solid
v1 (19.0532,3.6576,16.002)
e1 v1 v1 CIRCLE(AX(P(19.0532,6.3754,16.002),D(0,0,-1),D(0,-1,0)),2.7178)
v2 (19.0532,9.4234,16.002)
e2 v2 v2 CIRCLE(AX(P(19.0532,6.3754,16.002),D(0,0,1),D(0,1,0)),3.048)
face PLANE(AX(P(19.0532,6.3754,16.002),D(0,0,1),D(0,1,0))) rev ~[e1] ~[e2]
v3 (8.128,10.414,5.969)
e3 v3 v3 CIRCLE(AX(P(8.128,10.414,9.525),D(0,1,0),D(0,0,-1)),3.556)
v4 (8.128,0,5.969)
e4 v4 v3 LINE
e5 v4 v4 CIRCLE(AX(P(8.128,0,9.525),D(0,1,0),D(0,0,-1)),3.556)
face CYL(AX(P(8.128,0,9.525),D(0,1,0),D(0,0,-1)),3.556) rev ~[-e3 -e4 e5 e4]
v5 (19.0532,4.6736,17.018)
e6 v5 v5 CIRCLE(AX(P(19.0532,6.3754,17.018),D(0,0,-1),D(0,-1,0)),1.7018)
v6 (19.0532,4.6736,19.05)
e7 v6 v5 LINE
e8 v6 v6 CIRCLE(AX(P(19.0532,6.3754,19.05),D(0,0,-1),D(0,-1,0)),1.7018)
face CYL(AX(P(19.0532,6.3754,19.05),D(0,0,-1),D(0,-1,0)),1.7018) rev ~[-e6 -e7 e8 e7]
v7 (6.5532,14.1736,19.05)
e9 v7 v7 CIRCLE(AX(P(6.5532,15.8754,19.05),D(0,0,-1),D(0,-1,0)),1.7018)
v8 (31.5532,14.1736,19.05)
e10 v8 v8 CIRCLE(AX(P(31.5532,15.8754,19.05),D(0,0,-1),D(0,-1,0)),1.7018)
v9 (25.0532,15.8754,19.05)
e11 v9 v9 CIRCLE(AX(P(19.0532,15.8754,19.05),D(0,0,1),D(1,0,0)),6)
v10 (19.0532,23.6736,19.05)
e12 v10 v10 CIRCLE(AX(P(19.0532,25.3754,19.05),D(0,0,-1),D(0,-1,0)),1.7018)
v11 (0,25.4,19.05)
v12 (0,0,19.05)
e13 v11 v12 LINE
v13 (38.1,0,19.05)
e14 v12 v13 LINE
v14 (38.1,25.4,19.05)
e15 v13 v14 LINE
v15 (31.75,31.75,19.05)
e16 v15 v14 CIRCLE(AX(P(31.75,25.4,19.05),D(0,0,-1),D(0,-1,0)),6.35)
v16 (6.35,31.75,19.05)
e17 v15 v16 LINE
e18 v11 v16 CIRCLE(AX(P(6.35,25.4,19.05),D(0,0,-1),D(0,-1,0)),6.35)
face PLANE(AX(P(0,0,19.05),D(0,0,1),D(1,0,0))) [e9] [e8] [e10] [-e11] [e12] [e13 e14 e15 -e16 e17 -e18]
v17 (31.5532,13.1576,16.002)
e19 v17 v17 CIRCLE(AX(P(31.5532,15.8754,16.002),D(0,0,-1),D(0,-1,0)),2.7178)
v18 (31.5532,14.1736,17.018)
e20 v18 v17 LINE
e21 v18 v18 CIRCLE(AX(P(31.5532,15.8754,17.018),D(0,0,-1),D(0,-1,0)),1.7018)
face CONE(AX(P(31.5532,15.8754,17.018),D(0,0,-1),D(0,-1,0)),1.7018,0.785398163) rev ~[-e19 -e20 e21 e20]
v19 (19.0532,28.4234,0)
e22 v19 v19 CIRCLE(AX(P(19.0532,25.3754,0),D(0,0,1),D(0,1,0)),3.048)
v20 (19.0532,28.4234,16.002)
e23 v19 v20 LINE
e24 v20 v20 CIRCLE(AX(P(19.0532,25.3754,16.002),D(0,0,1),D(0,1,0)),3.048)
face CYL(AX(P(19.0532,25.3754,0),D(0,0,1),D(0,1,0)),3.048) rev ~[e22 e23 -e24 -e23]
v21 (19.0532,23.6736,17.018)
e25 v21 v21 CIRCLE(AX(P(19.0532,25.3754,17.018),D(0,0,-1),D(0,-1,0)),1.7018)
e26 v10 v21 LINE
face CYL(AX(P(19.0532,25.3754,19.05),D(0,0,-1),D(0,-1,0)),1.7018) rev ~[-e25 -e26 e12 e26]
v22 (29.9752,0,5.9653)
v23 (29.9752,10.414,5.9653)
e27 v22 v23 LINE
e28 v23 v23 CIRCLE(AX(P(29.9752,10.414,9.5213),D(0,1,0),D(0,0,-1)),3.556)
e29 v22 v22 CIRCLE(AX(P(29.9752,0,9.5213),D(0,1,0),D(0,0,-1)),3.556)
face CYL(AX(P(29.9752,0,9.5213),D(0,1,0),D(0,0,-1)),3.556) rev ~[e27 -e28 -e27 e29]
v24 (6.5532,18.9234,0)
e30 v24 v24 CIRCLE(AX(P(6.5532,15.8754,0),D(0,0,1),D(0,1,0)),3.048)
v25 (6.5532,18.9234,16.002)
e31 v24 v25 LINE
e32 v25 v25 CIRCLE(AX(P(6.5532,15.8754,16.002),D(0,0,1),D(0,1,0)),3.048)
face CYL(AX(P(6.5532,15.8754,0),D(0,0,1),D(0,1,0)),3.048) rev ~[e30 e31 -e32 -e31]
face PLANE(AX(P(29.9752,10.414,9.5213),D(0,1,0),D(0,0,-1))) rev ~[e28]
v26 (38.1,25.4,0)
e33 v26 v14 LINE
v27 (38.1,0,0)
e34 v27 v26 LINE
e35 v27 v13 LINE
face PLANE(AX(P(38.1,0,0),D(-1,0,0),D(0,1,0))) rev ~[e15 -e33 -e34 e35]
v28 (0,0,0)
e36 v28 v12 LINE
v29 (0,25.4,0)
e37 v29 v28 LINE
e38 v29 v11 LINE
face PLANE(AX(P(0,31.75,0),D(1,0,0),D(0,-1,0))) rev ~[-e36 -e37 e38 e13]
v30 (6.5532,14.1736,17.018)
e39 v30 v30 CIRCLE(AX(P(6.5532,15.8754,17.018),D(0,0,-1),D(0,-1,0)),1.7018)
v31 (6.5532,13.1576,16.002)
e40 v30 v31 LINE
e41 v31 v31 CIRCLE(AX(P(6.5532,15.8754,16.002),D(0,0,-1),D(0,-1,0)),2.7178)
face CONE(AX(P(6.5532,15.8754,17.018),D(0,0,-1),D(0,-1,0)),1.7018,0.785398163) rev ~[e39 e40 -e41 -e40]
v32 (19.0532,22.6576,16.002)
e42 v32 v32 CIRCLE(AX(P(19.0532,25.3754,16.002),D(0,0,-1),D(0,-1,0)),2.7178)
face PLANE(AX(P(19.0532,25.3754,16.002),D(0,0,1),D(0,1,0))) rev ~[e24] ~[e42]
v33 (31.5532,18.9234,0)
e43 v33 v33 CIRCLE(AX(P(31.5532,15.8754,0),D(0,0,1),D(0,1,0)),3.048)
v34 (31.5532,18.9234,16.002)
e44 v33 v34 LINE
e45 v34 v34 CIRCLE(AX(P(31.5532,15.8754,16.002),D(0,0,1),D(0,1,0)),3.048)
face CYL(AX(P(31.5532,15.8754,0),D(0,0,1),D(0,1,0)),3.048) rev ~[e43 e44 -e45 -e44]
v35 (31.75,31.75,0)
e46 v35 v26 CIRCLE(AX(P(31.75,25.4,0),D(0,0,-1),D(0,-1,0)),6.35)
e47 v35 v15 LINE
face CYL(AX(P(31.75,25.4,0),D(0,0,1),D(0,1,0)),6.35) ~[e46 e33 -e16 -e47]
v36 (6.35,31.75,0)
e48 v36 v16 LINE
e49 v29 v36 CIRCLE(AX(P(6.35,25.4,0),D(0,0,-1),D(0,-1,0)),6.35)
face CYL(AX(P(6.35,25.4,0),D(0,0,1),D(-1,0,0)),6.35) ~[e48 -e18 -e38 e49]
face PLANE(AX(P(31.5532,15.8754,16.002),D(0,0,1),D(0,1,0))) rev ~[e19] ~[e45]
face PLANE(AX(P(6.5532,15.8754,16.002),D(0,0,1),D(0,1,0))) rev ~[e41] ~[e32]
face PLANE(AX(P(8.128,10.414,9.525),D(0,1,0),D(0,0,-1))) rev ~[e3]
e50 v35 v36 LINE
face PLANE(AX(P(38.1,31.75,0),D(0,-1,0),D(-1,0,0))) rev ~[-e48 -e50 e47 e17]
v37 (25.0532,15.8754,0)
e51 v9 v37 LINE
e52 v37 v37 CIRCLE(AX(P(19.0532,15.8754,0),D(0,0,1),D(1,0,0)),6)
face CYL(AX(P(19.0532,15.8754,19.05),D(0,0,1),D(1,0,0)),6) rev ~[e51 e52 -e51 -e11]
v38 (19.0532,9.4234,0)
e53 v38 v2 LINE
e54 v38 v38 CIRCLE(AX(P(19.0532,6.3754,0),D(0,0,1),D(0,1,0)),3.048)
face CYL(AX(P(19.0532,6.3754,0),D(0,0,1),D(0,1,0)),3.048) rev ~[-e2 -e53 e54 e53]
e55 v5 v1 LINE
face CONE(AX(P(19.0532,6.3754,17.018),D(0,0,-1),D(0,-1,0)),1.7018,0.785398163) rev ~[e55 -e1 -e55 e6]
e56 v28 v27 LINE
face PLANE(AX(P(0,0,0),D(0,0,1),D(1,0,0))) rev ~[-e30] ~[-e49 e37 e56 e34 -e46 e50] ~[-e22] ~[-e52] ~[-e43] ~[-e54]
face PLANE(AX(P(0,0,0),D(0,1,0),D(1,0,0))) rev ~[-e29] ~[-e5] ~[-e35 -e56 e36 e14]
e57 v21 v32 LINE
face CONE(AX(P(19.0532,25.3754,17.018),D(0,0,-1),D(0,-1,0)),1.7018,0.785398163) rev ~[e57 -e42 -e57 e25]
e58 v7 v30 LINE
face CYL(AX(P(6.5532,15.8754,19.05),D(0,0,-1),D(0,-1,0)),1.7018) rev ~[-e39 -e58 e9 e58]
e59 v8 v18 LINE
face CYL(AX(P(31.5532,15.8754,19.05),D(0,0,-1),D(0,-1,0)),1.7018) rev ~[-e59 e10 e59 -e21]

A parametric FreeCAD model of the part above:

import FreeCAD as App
import Part
import Sketcher
Q = App.Units.Quantity


def edges_at(feature, points):
    """Names of the edges that pass closest to the given points."""
    edges = feature.Shape.Edges
    near = lambda p: min(range(len(edges)), key=lambda i: edges[i].distToShape(Part.Vertex(*p))[0])
    return sorted({f"Edge{near(p) + 1}" for p in points})


def add_polygon(sketch, points):
    """Adds a closed chain of lines whose ends are joined by coincident constraints."""
    first, n = sketch.GeometryCount, len(points)
    for a, b in zip(points, points[1:] + points[:1]):
        sketch.addGeometry(Part.LineSegment(App.Vector(*a, 0), App.Vector(*b, 0)), False)
    for i in range(n):
        sketch.addConstraint(Sketcher.Constraint("Coincident", first + i, 2, first + (i + 1) % n, 1))

doc = App.newDocument("Part")
body = doc.addObject("PartDesign::Body", "Body")

# Sketch on XY plane
sketch1 = doc.addObject("Sketcher::SketchObject", "Sketch")
body.addObject(sketch1)
sketch1.AttachmentSupport = (doc.XY_Plane, [""])
sketch1.MapMode = "FlatFace"
add_polygon(sketch1, [(0, 32), (0, 0), (38, 0), (38, 32)])  # lines 0-3
sketch1.addConstraint([
    Sketcher.Constraint("Vertical", 0),
    Sketcher.Constraint("Horizontal", 1),
    Sketcher.Constraint("Vertical", 2),
    Sketcher.Constraint("Horizontal", 3),
    Sketcher.Constraint("Coincident", 0, 2, -1, 1),
    Sketcher.Constraint("DistanceX", 1, 1, 1, 2, Q("1.5 in")),
    Sketcher.Constraint("DistanceY", 0, 2, 0, 1, Q("1.25 in")),
])
pad1 = doc.addObject("PartDesign::Pad", "Pad")
body.addObject(pad1)
pad1.Profile = sketch1
pad1.Length = Q("0.75 in")

# Sketch on XY plane
sketch2 = doc.addObject("Sketcher::SketchObject", "Sketch001")
body.addObject(sketch2)
sketch2.AttachmentSupport = (doc.XY_Plane, [""])
sketch2.MapMode = "FlatFace"
sketch2.AttachmentOffset = App.Placement(App.Vector(0, 0, 0.75 * 25.4), App.Rotation())
sketch2.addGeometry([
    Part.Circle(App.Vector(19.1, 15.9, 0), App.Vector(0, 0, 1), 1.7),  # 0
    Part.Circle(App.Vector(19.1, 25.4, 0), App.Vector(0, 0, 1), 1.7),  # 1
    Part.Circle(App.Vector(6.6, 15.9, 0), App.Vector(0, 0, 1), 1.7),  # 2
    Part.Circle(App.Vector(19.1, 6.4, 0), App.Vector(0, 0, 1), 1.7),  # 3
    Part.Circle(App.Vector(31.6, 15.9, 0), App.Vector(0, 0, 1), 1.7),  # 4
], False)
sketch2.addConstraint([
    Sketcher.Constraint("Equal", 0, 1),
    Sketcher.Constraint("Equal", 1, 2),
    Sketcher.Constraint("Equal", 2, 3),
    Sketcher.Constraint("Equal", 3, 4),
    Sketcher.Constraint("Horizontal", 0, 3, 2, 3),
    Sketcher.Constraint("Horizontal", 2, 3, 4, 3),
    Sketcher.Constraint("Vertical", 0, 3, 1, 3),
    Sketcher.Constraint("Vertical", 1, 3, 3, 3),
    Sketcher.Constraint("Diameter", 0, Q("0.134 in")),
    Sketcher.Constraint("DistanceX", -1, 1, 2, 3, Q("0.258 in")),
    Sketcher.Constraint("DistanceY", -1, 1, 3, 3, Q("0.251 in")),
    Sketcher.Constraint("DistanceX", -1, 1, 0, 3, Q("19.0532 mm")),
    Sketcher.Constraint("DistanceY", -1, 1, 0, 3, Q("15.8754 mm")),
    Sketcher.Constraint("DistanceY", -1, 1, 1, 3, Q("25.3754 mm")),
    Sketcher.Constraint("DistanceX", -1, 1, 4, 3, Q("31.5532 mm")),
])
doc.recompute()
hole = doc.addObject("PartDesign::Hole", "Hole")
body.addObject(hole)
hole.Profile = sketch2
hole.ThreadType = "None"
hole.Diameter = Q("0.134 in")
hole.DepthType = "Dimension"
hole.Depth = Q("1.2625 in")
hole.DrillPoint = "Flat"

# Sketch on XY plane
sketch3 = doc.addObject("Sketcher::SketchObject", "Sketch002")
body.addObject(sketch3)
sketch3.AttachmentSupport = (doc.XY_Plane, [""])
sketch3.MapMode = "FlatFace"
sketch3.addGeometry([
    Part.Circle(App.Vector(19.1, 15.9, 0), App.Vector(0, 0, 1), 3),  # 0
    Part.Circle(App.Vector(19.1, 25.4, 0), App.Vector(0, 0, 1), 3),  # 1
    Part.Circle(App.Vector(31.6, 15.9, 0), App.Vector(0, 0, 1), 3),  # 2
    Part.Circle(App.Vector(6.6, 15.9, 0), App.Vector(0, 0, 1), 3),  # 3
    Part.Circle(App.Vector(19.1, 6.4, 0), App.Vector(0, 0, 1), 3),  # 4
], False)
sketch3.addConstraint([
    Sketcher.Constraint("Equal", 0, 1),
    Sketcher.Constraint("Equal", 1, 2),
    Sketcher.Constraint("Equal", 2, 3),
    Sketcher.Constraint("Equal", 3, 4),
    Sketcher.Constraint("Horizontal", 0, 3, 2, 3),
    Sketcher.Constraint("Horizontal", 2, 3, 3, 3),
    Sketcher.Constraint("Vertical", 0, 3, 1, 3),
    Sketcher.Constraint("Vertical", 1, 3, 4, 3),
    Sketcher.Constraint("Diameter", 0, Q("0.24 in")),
    Sketcher.Constraint("DistanceX", -1, 1, 3, 3, Q("0.258 in")),
    Sketcher.Constraint("DistanceY", -1, 1, 4, 3, Q("0.251 in")),
    Sketcher.Constraint("DistanceX", -1, 1, 0, 3, Q("19.0532 mm")),
    Sketcher.Constraint("DistanceY", -1, 1, 0, 3, Q("15.8754 mm")),
    Sketcher.Constraint("DistanceY", -1, 1, 1, 3, Q("25.3754 mm")),
    Sketcher.Constraint("DistanceX", -1, 1, 2, 3, Q("31.5532 mm")),
])
doc.recompute()
hole2 = doc.addObject("PartDesign::Hole", "Hole001")
body.addObject(hole2)
hole2.Profile = sketch3
hole2.ThreadType = "None"
hole2.Diameter = Q("0.24 in")
hole2.DepthType = "Dimension"
hole2.Depth = Q("0.63 in")
hole2.DrillPoint = "Flat"
hole2.Reversed = True
doc.recompute()

chamfer = doc.addObject("PartDesign::Chamfer", "Chamfer")
body.addObject(chamfer)
chamfer.Base = (hole2, edges_at(hole2, [
    (19.053, 8.077, 16.002),
    (6.553, 17.577, 16.002),
    (19.053, 17.577, 16.002),
    (19.053, 27.077, 16.002),
    (31.553, 17.577, 16.002),
]))
chamfer.Size = Q("0.04 in")

# Sketch on XZ plane
sketch4 = doc.addObject("Sketcher::SketchObject", "Sketch003")
body.addObject(sketch4)
sketch4.AttachmentSupport = (doc.XZ_Plane, [""])
sketch4.MapMode = "FlatFace"
sketch4.addGeometry([
    Part.Circle(App.Vector(8.1, 9.5, 0), App.Vector(0, 0, 1), 3.6),
    Part.Circle(App.Vector(30, 9.5, 0), App.Vector(0, 0, 1), 3.6),
], False)
sketch4.addConstraint([
    Sketcher.Constraint("Equal", 0, 1),
    Sketcher.Constraint("Diameter", 0, Q("0.28 in")),
    Sketcher.Constraint("DistanceX", -1, 1, 0, 3, Q("0.32 in")),
    Sketcher.Constraint("DistanceY", -1, 1, 0, 3, Q("0.375 in")),
    Sketcher.Constraint("DistanceX", -1, 1, 1, 3, Q("29.9752 mm")),
    Sketcher.Constraint("DistanceY", -1, 1, 1, 3, Q("9.5213 mm")),
])
doc.recompute()
hole3 = doc.addObject("PartDesign::Hole", "Hole002")
body.addObject(hole3)
hole3.Profile = sketch4
hole3.ThreadType = "None"
hole3.Diameter = Q("0.28 in")
hole3.DepthType = "Dimension"
hole3.Depth = Q("0.41 in")
hole3.DrillPoint = "Flat"

# Sketch on XY plane
sketch5 = doc.addObject("Sketcher::SketchObject", "Sketch004")
body.addObject(sketch5)
sketch5.AttachmentSupport = (doc.XY_Plane, [""])
sketch5.MapMode = "FlatFace"
sketch5.AttachmentOffset = App.Placement(App.Vector(0, 0, 0.75 * 25.4), App.Rotation())
sketch5.addGeometry([
    Part.Circle(App.Vector(19.1, 15.9, 0), App.Vector(0, 0, 1), 6),
    Part.Circle(App.Vector(19.1, 15.9, 0), App.Vector(0, 0, 1), 1.7),
], False)
sketch5.addConstraint([
    Sketcher.Constraint("Coincident", 1, 3, 0, 3),
    Sketcher.Constraint("Diameter", 0, Q("12 mm")),
    Sketcher.Constraint("Diameter", 1, Q("0.134 in")),
    Sketcher.Constraint("DistanceX", -1, 1, 0, 3, Q("19.0532 mm")),
    Sketcher.Constraint("DistanceY", -1, 1, 0, 3, Q("15.8754 mm")),
])
pocket1 = doc.addObject("PartDesign::Pocket", "Pocket")
body.addObject(pocket1)
pocket1.Profile = sketch5
pocket1.Length = Q("1 in")
doc.recompute()

fillet = doc.addObject("PartDesign::Fillet", "Fillet")
body.addObject(fillet)
fillet.Base = (pocket1, edges_at(pocket1, [(0, 31.75, 9.525), (38.1, 31.75, 9.525)]))
fillet.Radius = Q("0.25 in")

doc.recompute()
